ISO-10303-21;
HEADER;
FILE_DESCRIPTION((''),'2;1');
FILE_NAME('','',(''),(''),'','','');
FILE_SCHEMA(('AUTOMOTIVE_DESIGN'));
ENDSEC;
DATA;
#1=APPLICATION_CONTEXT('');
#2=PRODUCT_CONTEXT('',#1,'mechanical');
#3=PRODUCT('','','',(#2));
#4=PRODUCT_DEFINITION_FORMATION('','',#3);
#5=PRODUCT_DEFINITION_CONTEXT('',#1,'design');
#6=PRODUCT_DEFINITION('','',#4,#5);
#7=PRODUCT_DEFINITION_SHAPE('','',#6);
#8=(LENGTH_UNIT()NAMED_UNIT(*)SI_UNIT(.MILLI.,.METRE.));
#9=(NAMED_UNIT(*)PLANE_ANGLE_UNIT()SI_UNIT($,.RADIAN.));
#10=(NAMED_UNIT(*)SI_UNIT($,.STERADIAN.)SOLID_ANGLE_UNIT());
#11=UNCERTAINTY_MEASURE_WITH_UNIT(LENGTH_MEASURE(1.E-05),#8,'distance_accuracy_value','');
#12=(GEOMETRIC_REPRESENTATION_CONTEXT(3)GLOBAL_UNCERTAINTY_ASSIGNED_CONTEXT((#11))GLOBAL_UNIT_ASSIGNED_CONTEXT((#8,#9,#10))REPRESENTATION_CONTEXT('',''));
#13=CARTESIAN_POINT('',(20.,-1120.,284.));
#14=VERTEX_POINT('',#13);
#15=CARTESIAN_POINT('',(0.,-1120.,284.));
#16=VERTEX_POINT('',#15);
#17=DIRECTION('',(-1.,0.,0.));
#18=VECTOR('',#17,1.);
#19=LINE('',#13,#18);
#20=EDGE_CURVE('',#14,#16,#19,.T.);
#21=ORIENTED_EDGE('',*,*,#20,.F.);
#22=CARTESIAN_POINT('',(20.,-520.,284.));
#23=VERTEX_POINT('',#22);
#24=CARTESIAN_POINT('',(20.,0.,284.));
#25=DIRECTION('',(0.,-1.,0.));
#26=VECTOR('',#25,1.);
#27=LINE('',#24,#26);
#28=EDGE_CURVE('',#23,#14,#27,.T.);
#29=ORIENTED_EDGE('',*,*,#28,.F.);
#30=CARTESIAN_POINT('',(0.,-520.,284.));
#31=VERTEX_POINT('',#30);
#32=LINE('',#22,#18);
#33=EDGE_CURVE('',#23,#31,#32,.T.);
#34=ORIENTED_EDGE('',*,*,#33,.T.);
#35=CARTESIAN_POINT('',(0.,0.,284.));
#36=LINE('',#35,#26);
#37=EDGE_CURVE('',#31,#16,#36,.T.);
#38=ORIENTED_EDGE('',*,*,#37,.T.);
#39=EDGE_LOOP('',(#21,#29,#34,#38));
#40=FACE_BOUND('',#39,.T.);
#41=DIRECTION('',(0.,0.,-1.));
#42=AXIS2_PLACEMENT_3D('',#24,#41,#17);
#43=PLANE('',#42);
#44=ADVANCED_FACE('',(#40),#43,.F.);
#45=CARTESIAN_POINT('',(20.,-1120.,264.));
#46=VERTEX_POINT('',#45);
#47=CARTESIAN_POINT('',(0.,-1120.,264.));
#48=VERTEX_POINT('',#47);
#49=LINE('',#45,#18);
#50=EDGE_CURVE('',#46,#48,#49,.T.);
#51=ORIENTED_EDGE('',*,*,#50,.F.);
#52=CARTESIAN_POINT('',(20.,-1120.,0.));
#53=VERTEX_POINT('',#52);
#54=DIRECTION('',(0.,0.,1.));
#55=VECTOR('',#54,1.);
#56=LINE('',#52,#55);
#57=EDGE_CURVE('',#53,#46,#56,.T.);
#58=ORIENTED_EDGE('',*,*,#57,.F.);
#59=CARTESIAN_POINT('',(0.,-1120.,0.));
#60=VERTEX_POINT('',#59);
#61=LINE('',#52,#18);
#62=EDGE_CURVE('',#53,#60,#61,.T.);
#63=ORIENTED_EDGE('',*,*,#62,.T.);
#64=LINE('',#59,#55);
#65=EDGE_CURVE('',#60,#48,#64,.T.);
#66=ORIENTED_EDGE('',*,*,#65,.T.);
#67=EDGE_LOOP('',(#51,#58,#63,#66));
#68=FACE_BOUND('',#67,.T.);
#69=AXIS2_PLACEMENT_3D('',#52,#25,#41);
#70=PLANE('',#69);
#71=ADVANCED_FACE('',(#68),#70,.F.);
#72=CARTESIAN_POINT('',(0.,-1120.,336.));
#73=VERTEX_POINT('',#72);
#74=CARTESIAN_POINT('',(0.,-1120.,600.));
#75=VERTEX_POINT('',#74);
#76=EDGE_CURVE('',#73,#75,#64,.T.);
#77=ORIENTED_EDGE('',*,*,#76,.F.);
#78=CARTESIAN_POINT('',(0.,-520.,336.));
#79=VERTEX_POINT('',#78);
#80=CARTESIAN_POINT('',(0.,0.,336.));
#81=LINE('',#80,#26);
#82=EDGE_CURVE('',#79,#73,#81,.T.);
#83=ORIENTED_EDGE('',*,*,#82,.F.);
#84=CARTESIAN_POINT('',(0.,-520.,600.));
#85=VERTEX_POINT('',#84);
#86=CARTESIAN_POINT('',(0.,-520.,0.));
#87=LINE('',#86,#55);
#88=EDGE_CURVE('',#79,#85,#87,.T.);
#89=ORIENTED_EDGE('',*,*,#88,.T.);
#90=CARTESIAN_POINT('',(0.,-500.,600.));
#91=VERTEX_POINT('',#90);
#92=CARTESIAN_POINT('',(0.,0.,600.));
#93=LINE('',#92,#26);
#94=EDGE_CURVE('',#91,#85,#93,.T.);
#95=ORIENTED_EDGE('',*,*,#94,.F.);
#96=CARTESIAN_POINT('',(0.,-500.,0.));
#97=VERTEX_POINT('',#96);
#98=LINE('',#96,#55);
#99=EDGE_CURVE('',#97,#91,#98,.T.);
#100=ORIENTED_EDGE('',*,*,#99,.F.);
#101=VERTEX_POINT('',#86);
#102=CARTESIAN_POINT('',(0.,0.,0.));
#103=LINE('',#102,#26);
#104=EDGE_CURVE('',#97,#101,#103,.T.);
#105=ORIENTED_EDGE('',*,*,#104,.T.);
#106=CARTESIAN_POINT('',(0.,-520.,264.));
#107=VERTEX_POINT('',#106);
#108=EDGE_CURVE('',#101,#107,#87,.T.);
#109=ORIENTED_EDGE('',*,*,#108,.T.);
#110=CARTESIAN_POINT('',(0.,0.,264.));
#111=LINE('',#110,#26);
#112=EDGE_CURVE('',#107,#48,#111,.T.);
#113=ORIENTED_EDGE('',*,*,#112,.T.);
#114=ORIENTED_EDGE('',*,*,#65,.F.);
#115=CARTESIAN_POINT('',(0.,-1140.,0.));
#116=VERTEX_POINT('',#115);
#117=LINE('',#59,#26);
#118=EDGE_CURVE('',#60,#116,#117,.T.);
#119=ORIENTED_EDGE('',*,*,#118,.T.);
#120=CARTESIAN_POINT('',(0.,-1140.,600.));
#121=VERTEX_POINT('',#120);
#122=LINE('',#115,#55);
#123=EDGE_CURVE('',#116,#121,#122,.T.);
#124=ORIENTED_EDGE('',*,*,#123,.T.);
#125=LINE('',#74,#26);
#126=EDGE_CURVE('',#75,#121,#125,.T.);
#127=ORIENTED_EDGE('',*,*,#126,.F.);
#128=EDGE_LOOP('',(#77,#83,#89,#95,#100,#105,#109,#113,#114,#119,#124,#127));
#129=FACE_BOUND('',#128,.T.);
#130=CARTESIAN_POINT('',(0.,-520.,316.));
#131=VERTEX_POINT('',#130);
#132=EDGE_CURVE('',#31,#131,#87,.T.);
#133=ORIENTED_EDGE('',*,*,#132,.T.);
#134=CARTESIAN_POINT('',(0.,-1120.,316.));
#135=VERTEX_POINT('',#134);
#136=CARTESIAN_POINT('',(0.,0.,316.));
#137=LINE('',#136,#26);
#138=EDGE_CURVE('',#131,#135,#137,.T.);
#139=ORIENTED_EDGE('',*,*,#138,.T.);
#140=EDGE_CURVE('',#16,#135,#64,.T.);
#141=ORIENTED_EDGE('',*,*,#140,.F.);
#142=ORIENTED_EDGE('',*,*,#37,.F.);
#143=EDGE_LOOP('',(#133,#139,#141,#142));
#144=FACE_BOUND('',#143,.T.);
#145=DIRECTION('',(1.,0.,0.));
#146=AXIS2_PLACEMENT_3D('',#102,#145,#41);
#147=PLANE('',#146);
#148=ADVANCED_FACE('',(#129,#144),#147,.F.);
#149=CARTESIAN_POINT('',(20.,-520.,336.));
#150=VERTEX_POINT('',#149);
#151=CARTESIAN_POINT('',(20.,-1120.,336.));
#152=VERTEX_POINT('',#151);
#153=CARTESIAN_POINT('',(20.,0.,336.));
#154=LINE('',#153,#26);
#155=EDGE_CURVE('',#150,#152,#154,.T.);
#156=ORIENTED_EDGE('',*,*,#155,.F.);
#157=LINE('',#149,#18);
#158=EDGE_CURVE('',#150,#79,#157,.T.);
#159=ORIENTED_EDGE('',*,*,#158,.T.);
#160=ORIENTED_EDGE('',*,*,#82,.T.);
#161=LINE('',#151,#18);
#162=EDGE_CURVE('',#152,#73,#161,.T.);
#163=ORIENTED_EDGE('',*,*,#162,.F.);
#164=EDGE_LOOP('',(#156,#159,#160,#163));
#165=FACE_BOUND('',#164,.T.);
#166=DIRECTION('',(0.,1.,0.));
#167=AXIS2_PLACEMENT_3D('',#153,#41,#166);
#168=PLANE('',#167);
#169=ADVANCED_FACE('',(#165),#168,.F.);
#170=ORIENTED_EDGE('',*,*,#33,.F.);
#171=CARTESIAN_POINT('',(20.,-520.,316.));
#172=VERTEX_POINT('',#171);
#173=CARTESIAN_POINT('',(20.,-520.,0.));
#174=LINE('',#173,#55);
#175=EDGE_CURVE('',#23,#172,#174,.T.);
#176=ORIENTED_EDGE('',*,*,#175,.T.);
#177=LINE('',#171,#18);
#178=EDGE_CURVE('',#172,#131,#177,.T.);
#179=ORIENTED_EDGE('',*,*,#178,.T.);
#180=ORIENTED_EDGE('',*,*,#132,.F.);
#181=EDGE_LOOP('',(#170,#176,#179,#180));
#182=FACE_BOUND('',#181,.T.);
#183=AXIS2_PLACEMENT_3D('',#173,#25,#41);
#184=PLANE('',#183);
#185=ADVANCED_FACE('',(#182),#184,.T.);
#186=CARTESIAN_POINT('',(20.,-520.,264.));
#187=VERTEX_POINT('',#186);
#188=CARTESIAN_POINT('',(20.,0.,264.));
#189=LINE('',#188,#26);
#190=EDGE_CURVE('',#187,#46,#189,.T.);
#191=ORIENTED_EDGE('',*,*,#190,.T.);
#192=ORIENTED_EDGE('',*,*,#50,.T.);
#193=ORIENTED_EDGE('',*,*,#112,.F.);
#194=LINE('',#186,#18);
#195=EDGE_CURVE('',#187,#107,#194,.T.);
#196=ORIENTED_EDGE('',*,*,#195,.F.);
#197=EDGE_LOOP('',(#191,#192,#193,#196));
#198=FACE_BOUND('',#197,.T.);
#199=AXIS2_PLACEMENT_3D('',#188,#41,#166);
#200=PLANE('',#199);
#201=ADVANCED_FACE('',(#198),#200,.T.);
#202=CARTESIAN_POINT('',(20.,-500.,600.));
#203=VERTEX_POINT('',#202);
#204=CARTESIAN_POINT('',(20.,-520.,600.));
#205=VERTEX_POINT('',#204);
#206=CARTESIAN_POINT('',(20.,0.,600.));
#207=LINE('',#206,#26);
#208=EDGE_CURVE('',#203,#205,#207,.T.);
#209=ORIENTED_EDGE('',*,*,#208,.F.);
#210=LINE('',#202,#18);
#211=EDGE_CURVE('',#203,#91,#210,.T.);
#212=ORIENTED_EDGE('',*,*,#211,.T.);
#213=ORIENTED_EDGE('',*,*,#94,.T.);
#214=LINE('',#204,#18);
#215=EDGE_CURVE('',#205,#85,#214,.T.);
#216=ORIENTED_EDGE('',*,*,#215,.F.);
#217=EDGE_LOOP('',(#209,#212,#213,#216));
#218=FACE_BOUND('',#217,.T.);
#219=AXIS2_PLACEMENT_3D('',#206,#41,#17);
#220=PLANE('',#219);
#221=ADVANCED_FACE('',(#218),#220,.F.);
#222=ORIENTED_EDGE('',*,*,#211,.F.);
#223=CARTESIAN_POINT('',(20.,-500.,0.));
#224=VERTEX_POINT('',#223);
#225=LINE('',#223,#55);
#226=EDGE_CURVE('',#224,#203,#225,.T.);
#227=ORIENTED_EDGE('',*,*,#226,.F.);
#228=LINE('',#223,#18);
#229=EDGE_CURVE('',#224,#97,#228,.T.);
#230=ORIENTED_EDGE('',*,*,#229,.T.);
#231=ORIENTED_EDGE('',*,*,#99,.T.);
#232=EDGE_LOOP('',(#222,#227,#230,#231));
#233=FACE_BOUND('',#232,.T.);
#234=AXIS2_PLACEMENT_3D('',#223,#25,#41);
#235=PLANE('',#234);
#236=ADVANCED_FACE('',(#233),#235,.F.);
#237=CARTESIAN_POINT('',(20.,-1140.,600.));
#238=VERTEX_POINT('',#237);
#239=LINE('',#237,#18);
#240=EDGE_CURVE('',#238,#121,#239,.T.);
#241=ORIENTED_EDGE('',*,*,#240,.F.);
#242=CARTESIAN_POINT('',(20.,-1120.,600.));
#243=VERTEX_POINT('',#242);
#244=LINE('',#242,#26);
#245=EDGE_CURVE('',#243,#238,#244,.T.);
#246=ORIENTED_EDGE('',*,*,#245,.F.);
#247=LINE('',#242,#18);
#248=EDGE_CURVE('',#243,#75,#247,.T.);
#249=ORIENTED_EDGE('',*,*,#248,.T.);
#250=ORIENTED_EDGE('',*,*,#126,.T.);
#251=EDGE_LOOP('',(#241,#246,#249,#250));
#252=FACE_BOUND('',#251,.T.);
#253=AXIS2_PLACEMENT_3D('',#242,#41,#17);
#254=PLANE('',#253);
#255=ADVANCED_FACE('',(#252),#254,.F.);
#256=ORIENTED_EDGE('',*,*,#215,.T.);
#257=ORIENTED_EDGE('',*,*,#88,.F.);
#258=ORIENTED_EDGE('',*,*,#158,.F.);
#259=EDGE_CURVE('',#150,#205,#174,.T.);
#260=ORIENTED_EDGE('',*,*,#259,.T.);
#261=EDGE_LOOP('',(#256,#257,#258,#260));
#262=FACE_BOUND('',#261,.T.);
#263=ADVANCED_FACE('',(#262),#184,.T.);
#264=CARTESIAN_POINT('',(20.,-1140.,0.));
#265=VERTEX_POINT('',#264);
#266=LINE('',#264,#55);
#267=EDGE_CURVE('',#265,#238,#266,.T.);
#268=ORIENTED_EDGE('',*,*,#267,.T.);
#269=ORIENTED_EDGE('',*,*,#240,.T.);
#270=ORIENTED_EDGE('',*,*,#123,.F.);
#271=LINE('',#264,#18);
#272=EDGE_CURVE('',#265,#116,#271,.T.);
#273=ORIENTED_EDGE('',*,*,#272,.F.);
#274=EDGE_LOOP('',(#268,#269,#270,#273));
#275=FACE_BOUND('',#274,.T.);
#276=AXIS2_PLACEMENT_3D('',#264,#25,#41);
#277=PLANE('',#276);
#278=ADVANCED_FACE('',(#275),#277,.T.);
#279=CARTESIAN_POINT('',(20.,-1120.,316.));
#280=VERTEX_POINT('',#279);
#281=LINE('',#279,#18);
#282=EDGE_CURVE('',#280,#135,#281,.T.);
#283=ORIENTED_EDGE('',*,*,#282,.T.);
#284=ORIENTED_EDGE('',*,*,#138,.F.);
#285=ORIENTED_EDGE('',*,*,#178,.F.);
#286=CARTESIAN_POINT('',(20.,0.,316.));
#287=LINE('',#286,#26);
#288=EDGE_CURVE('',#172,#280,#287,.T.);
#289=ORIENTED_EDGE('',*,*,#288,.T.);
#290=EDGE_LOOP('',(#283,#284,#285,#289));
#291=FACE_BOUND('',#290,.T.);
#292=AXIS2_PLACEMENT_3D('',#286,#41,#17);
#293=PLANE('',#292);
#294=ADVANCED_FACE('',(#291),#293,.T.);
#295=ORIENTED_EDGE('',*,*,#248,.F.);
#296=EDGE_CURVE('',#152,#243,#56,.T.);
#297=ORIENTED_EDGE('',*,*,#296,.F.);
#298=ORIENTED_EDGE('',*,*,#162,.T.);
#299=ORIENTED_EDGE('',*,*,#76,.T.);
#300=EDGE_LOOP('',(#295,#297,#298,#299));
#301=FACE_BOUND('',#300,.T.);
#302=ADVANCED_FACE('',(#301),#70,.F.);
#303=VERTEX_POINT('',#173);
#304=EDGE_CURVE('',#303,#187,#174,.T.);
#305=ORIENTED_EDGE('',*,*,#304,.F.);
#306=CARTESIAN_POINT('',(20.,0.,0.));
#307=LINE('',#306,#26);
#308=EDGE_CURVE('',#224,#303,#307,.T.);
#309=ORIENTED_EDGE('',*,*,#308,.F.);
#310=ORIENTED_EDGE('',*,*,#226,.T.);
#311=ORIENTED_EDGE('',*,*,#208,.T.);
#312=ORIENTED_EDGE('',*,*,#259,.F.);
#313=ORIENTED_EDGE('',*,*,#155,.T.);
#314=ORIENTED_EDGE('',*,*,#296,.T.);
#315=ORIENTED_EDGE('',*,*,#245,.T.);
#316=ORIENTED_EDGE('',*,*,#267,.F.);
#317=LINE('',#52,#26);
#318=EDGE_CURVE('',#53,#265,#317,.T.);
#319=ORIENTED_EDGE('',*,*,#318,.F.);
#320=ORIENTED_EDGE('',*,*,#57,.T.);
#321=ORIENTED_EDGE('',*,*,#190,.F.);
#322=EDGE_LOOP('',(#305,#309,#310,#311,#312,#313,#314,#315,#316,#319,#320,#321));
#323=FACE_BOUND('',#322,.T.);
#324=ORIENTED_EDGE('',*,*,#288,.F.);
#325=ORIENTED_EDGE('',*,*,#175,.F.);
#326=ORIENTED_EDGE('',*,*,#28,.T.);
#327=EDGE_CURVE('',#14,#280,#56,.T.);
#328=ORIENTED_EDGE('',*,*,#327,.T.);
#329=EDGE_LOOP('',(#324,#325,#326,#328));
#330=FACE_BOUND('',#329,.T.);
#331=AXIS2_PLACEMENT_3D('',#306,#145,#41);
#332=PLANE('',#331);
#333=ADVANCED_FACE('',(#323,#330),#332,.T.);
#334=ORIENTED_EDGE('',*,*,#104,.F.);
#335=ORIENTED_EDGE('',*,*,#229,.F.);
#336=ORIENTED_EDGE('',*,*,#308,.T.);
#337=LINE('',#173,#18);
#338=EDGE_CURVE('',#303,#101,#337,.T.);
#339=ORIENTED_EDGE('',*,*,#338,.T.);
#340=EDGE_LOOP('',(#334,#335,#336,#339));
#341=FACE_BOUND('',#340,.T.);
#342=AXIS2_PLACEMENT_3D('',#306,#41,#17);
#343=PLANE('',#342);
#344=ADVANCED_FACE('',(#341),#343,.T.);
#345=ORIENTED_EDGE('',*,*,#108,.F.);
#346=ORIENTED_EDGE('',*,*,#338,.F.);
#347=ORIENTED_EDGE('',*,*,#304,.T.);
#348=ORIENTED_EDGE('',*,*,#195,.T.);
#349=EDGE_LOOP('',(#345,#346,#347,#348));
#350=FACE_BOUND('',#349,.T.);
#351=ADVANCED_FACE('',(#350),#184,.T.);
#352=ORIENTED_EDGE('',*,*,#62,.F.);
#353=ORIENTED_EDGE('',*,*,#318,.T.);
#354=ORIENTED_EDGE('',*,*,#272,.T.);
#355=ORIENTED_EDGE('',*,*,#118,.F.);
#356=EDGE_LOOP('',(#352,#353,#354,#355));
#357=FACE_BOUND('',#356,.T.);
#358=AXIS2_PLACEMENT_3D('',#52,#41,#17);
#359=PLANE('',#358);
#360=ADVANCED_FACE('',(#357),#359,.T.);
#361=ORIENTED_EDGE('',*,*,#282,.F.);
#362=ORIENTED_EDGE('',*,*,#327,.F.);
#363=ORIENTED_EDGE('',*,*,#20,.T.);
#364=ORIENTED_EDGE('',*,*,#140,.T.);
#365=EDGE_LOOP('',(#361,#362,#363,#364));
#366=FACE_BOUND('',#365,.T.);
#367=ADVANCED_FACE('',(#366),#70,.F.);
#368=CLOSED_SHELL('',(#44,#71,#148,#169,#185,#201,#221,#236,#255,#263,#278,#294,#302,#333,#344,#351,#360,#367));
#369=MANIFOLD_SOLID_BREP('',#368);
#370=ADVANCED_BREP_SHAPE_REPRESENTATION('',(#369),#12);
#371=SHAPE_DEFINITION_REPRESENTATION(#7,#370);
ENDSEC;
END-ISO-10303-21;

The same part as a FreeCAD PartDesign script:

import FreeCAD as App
import Part
import Sketcher
from FreeCAD import Vector
Q = App.Units.Quantity

doc = App.newDocument("Part")
body = doc.addObject("PartDesign::Body", "Body")

sketch1 = body.newObject("Sketcher::SketchObject", "Sketch")
sketch1.AttachmentSupport = (doc.getObject("YZ_Plane"), [""])
sketch1.MapMode = "FlatFace"
sketch1.addGeometry(Part.LineSegment(Vector(-500, 0, 0), Vector(-500, 600, 0)), False)
sketch1.addGeometry(Part.LineSegment(Vector(-500, 600, 0), Vector(-520, 600, 0)), False)
sketch1.addGeometry(Part.LineSegment(Vector(-520, 600, 0), Vector(-520, 336, 0)), False)
sketch1.addGeometry(Part.LineSegment(Vector(-520, 336, 0), Vector(-1120, 336, 0)), False)
sketch1.addGeometry(Part.LineSegment(Vector(-1120, 336, 0), Vector(-1120, 600, 0)), False)
sketch1.addGeometry(Part.LineSegment(Vector(-1120, 600, 0), Vector(-1140, 600, 0)), False)
sketch1.addGeometry(Part.LineSegment(Vector(-1140, 600, 0), Vector(-1140, 0, 0)), False)
sketch1.addGeometry(Part.LineSegment(Vector(-1140, 0, 0), Vector(-1120, 0, 0)), False)
sketch1.addGeometry(Part.LineSegment(Vector(-1120, 0, 0), Vector(-1120, 264, 0)), False)
sketch1.addGeometry(Part.LineSegment(Vector(-1120, 264, 0), Vector(-520, 264, 0)), False)
sketch1.addGeometry(Part.LineSegment(Vector(-520, 264, 0), Vector(-520, 0, 0)), False)
sketch1.addGeometry(Part.LineSegment(Vector(-520, 0, 0), Vector(-500, 0, 0)), False)
sketch1.addGeometry(Part.LineSegment(Vector(-1120, 284, 0), Vector(-1120, 316, 0)), False)
sketch1.addGeometry(Part.LineSegment(Vector(-1120, 316, 0), Vector(-520, 316, 0)), False)
sketch1.addGeometry(Part.LineSegment(Vector(-520, 316, 0), Vector(-520, 284, 0)), False)
sketch1.addGeometry(Part.LineSegment(Vector(-520, 284, 0), Vector(-1120, 284, 0)), False)
sketch1.addConstraint(Sketcher.Constraint("Coincident", 0, 2, 1, 1))
sketch1.addConstraint(Sketcher.Constraint("Coincident", 1, 2, 2, 1))
sketch1.addConstraint(Sketcher.Constraint("Coincident", 2, 2, 3, 1))
sketch1.addConstraint(Sketcher.Constraint("Coincident", 3, 2, 4, 1))
sketch1.addConstraint(Sketcher.Constraint("Coincident", 4, 2, 5, 1))
sketch1.addConstraint(Sketcher.Constraint("Coincident", 5, 2, 6, 1))
sketch1.addConstraint(Sketcher.Constraint("Coincident", 6, 2, 7, 1))
sketch1.addConstraint(Sketcher.Constraint("Coincident", 7, 2, 8, 1))
sketch1.addConstraint(Sketcher.Constraint("Coincident", 8, 2, 9, 1))
sketch1.addConstraint(Sketcher.Constraint("Coincident", 9, 2, 10, 1))
sketch1.addConstraint(Sketcher.Constraint("Coincident", 10, 2, 11, 1))
sketch1.addConstraint(Sketcher.Constraint("Coincident", 11, 2, 0, 1))
sketch1.addConstraint(Sketcher.Constraint("Coincident", 12, 2, 13, 1))
sketch1.addConstraint(Sketcher.Constraint("Coincident", 13, 2, 14, 1))
sketch1.addConstraint(Sketcher.Constraint("Coincident", 14, 2, 15, 1))
sketch1.addConstraint(Sketcher.Constraint("Coincident", 15, 2, 12, 1))
sketch1.addConstraint(Sketcher.Constraint("Vertical", 0))
sketch1.addConstraint(Sketcher.Constraint("Horizontal", 1))
sketch1.addConstraint(Sketcher.Constraint("Vertical", 2))
sketch1.addConstraint(Sketcher.Constraint("Horizontal", 3))
sketch1.addConstraint(Sketcher.Constraint("Vertical", 4))
sketch1.addConstraint(Sketcher.Constraint("Horizontal", 5))
sketch1.addConstraint(Sketcher.Constraint("Vertical", 6))
sketch1.addConstraint(Sketcher.Constraint("Horizontal", 7))
sketch1.addConstraint(Sketcher.Constraint("Vertical", 8))
sketch1.addConstraint(Sketcher.Constraint("Horizontal", 9))
sketch1.addConstraint(Sketcher.Constraint("Vertical", 10))
sketch1.addConstraint(Sketcher.Constraint("Horizontal", 11))
sketch1.addConstraint(Sketcher.Constraint("Vertical", 12))
sketch1.addConstraint(Sketcher.Constraint("Horizontal", 13))
sketch1.addConstraint(Sketcher.Constraint("Vertical", 14))
sketch1.addConstraint(Sketcher.Constraint("Horizontal", 15))
sketch1.addConstraint(Sketcher.Constraint("PointOnObject", 6, 2, -1))
sketch1.addConstraint(Sketcher.Constraint("PointOnObject", 10, 2, -1))
sketch1.addConstraint(Sketcher.Constraint("Horizontal", 1, 2, 4, 2))
sketch1.addConstraint(Sketcher.Constraint("Vertical", 4, 2, 7, 2))
sketch1.addConstraint(Sketcher.Constraint("Vertical", 2, 2, 9, 2))
sketch1.addConstraint(Sketcher.Constraint("Vertical", 8, 2, 12, 2))
sketch1.addConstraint(Sketcher.Constraint("Vertical", 10, 2, 13, 2))
sketch1.addConstraint(Sketcher.Constraint("Equal", 1, 5))
sketch1.addConstraint(Sketcher.Constraint("Equal", 15, 0))
sketch1.addConstraint(Sketcher.Constraint("Equal", 4, 8))
sketch1.addConstraint(Sketcher.Constraint("DistanceX", 1, 2, 1, 1, Q("20 mm")))
sketch1.addConstraint(Sketcher.Constraint("DistanceX", 3, 2, 3, 1, Q("600 mm")))
sketch1.addConstraint(Sketcher.Constraint("DistanceY", 2, 2, 2, 1, Q("264 mm")))
sketch1.addConstraint(Sketcher.Constraint("DistanceY", 12, 1, 12, 2, Q("32 mm")))
sketch1.addConstraint(Sketcher.Constraint("DistanceX", 0, 2, -1, 1, Q("500 mm")))
sketch1.addConstraint(Sketcher.Constraint("DistanceY", -1, 1, 12, 2, Q("316 mm")))
pad1 = body.newObject("PartDesign::Pad", "Pad")
pad1.Profile = sketch1
pad1.Length = 20

doc.recompute()
